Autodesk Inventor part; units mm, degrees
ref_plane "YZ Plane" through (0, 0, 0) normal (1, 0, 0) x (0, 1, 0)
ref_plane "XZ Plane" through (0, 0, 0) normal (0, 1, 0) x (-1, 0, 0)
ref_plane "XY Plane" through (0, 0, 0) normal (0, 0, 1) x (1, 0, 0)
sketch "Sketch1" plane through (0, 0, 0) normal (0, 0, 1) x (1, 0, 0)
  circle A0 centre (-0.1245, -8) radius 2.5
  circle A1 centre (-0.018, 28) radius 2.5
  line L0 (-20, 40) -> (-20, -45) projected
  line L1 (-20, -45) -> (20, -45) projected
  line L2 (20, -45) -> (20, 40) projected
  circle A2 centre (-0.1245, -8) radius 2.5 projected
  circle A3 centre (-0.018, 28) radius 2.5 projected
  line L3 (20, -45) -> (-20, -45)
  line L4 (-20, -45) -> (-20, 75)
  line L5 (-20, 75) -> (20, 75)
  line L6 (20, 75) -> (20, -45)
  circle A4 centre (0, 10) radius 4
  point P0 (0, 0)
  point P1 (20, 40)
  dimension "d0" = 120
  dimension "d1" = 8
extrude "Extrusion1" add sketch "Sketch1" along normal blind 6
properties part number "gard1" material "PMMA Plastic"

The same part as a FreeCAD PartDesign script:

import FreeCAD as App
import Part
import Sketcher

V = App.Vector
Q = App.Units.Quantity

doc = App.newDocument("Part")
body = doc.addObject("PartDesign::Body", "Body")

# Sketch on XY plane
sketch1 = body.newObject("Sketcher::SketchObject", "Sketch")
sketch1.AttachmentSupport = (doc.getObject("XY_Plane"), [""])
sketch1.MapMode = "FlatFace"
sketch1.addGeometry([
    Part.LineSegment(V(-20, 75, 0), V(-20, -45, 0)),  # 0
    Part.LineSegment(V(-20, -45, 0), V(20, -45, 0)),  # 1
    Part.LineSegment(V(20, -45, 0), V(20, 75, 0)),  # 2
    Part.LineSegment(V(20, 75, 0), V(-20, 75, 0)),  # 3
    Part.Circle(V(-0.1, -8, 0), V(0, 0, 1), 2.5),  # 4
    Part.Circle(V(0, 10, 0), V(0, 0, 1), 4),  # 5
    Part.Circle(V(0, 28, 0), V(0, 0, 1), 2.5),  # 6
], False)
sketch1.addConstraint([
    Sketcher.Constraint("Coincident", 0, 2, 1, 1),
    Sketcher.Constraint("Coincident", 1, 2, 2, 1),
    Sketcher.Constraint("Coincident", 2, 2, 3, 1),
    Sketcher.Constraint("Coincident", 3, 2, 0, 1),
    Sketcher.Constraint("Vertical", 0),
    Sketcher.Constraint("Horizontal", 1),
    Sketcher.Constraint("Vertical", 2),
    Sketcher.Constraint("Horizontal", 3),
    Sketcher.Constraint("Equal", 4, 6),
    Sketcher.Constraint("PointOnObject", 5, 3, -2),
    Sketcher.Constraint("Diameter", 5, Q("8 mm")),
    Sketcher.Constraint("DistanceY", 0, 2, 0, 1, Q("120 mm")),
    Sketcher.Constraint("Diameter", 4, Q("5 mm")),
    Sketcher.Constraint("DistanceY", 4, 3, -1, 1, Q("8 mm")),
    Sketcher.Constraint("DistanceX", 1, 1, 1, 2, Q("40 mm")),
    Sketcher.Constraint("DistanceY", -1, 1, 5, 3, Q("10 mm")),
    Sketcher.Constraint("DistanceY", -1, 1, 6, 3, Q("28 mm")),
    Sketcher.Constraint("DistanceX", 0, 2, -1, 1, Q("20 mm")),
    Sketcher.Constraint("DistanceY", 0, 2, -1, 1, Q("45 mm")),
    Sketcher.Constraint("DistanceX", 6, 3, -1, 1, Q("0.018 mm")),
    Sketcher.Constraint("DistanceX", 4, 3, -1, 1, Q("0.1245 mm")),
])
pad1 = body.newObject("PartDesign::Pad", "Pad")
pad1.Profile = sketch1
pad1.Length = 6

doc.recompute()
